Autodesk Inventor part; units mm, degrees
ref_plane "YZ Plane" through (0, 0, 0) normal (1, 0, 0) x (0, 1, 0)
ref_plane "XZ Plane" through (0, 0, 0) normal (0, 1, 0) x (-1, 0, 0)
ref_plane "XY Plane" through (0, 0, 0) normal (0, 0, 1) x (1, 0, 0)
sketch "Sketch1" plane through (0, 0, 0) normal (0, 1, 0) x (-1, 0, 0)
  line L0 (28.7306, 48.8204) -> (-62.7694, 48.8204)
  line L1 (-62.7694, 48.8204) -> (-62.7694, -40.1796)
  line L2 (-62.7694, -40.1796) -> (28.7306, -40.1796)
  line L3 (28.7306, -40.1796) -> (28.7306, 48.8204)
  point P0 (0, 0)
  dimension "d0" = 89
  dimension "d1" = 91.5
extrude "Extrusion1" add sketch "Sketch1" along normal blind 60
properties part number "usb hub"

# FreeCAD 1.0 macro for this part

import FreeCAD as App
import Part
import Sketcher
from FreeCAD import Vector


def add_polygon(sketch, points):
    """Adds a closed chain of lines whose ends are joined by coincident constraints."""
    first, n = sketch.GeometryCount, len(points)
    for a, b in zip(points, points[1:] + points[:1]):
        sketch.addGeometry(Part.LineSegment(App.Vector(*a, 0), App.Vector(*b, 0)), False)
    for i in range(n):
        sketch.addConstraint(Sketcher.Constraint("Coincident", first + i, 2, first + (i + 1) % n, 1))

doc = App.newDocument("Part")
body = doc.addObject("PartDesign::Body", "Body")

# Sketch on XZ plane
sketch1 = body.newObject("Sketcher::SketchObject", "Sketch")
sketch1.AttachmentSupport = (doc.getObject("XZ_Plane"), [""])
sketch1.MapMode = "FlatFace"
add_polygon(sketch1, [(-29, -40), (-29, 49), (63, 49), (63, -40)])  # lines 0-3
sketch1.addConstraint([
    Sketcher.Constraint("Vertical", 0),
    Sketcher.Constraint("Horizontal", 1),
    Sketcher.Constraint("Vertical", 2),
    Sketcher.Constraint("Horizontal", 3),
    Sketcher.Constraint("DistanceY", 0, 1, 0, 2, 89.0),
    Sketcher.Constraint("DistanceX", 1, 1, 1, 2, 91.5),
    Sketcher.Constraint("DistanceX", 0, 2, -1, 1, 28.7306),
    Sketcher.Constraint("DistanceY", -1, 1, 0, 2, 48.8204),
])
pad1 = body.newObject("PartDesign::Pad", "Pad")
pad1.Profile = sketch1
pad1.Length = 60
pad1.Reversed = True

doc.recompute()
